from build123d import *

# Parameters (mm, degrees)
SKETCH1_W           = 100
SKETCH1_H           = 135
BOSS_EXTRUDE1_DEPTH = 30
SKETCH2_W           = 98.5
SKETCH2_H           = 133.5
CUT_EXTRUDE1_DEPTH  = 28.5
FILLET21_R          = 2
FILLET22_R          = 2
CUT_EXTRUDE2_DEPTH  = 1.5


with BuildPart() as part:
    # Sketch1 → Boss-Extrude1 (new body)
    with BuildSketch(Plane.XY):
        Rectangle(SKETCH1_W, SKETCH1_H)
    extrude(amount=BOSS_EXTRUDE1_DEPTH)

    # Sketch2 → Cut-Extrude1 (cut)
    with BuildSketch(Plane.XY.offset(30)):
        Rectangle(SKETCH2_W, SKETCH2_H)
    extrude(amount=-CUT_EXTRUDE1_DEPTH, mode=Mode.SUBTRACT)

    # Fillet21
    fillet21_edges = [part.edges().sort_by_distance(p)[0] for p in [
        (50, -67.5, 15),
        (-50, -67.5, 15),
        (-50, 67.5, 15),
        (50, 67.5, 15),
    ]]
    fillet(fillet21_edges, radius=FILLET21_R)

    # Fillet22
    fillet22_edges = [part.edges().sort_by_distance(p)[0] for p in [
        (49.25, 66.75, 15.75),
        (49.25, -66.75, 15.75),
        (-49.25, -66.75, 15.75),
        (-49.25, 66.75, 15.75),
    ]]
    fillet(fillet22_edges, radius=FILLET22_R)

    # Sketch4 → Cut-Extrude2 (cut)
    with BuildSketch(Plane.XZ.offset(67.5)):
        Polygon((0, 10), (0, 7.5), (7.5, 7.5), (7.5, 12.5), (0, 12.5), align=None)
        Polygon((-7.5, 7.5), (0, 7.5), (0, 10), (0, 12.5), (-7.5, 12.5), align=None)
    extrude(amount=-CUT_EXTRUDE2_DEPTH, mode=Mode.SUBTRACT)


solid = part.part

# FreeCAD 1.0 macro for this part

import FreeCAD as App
import Part
import Sketcher


def edges_at(feature, points):
    """Names of the edges that pass closest to the given points."""
    edges = feature.Shape.Edges
    near = lambda p: min(range(len(edges)), key=lambda i: edges[i].distToShape(Part.Vertex(*p))[0])
    return sorted({f"Edge{near(p) + 1}" for p in points})


def add_polygon(sketch, points):
    """Adds a closed chain of lines whose ends are joined by coincident constraints."""
    first, n = sketch.GeometryCount, len(points)
    for a, b in zip(points, points[1:] + points[:1]):
        sketch.addGeometry(Part.LineSegment(App.Vector(*a, 0), App.Vector(*b, 0)), False)
    for i in range(n):
        sketch.addConstraint(Sketcher.Constraint("Coincident", first + i, 2, first + (i + 1) % n, 1))

doc = App.newDocument("Part")
body = doc.addObject("PartDesign::Body", "Body")

sketch1 = body.newObject("Sketcher::SketchObject", "Sketch")
sketch1.AttachmentSupport = (doc.getObject("XY_Plane"), [""])
sketch1.MapMode = "FlatFace"
add_polygon(sketch1, [(-50, 68), (-50, -68), (50, -68), (50, 68)])
sketch1.addConstraint([
    Sketcher.Constraint("Vertical", 0),
    Sketcher.Constraint("Horizontal", 1),
    Sketcher.Constraint("Vertical", 2),
    Sketcher.Constraint("Horizontal", 3),
    Sketcher.Constraint("Symmetric", 0, 2, 2, 2, -1, 1),
    Sketcher.Constraint("DistanceX", 1, 1, 1, 2, 100.0),
    Sketcher.Constraint("DistanceY", 0, 2, 0, 1, 135.0),
])
pad1 = body.newObject("PartDesign::Pad", "Pad")
pad1.Profile = sketch1
pad1.Length = 30

sketch2 = body.newObject("Sketcher::SketchObject", "Sketch001")
sketch2.AttachmentSupport = (doc.getObject("XY_Plane"), [""])
sketch2.MapMode = "FlatFace"
sketch2.AttachmentOffset = App.Placement(App.Vector(0, 0, 30), App.Rotation())
add_polygon(sketch2, [(-49, 67), (-49, -67), (49, -67), (49, 67)])
sketch2.addConstraint([
    Sketcher.Constraint("Vertical", 0),
    Sketcher.Constraint("Horizontal", 1),
    Sketcher.Constraint("Vertical", 2),
    Sketcher.Constraint("Horizontal", 3),
    Sketcher.Constraint("Symmetric", 0, 2, 2, 2, -1, 1),
    Sketcher.Constraint("DistanceX", 1, 1, 1, 2, 98.5),
    Sketcher.Constraint("DistanceY", 0, 2, 0, 1, 133.5),
])
pocket1 = body.newObject("PartDesign::Pocket", "Pocket")
pocket1.Profile = sketch2
pocket1.Length = 28.5
doc.recompute()

fillet = body.newObject("PartDesign::Fillet", "Fillet")
fillet.Base = (pocket1, edges_at(pocket1, [
    (50, -67.5, 15),
    (-50, -67.5, 15),
    (-50, 67.5, 15),
    (50, 67.5, 15),
]))
fillet.Radius = 2
doc.recompute()

fillet2 = body.newObject("PartDesign::Fillet", "Fillet001")
fillet2.Base = (fillet, edges_at(fillet, [
    (49.25, 66.75, 15.75),
    (49.25, -66.75, 15.75),
    (-49.25, -66.75, 15.75),
    (-49.25, 66.75, 15.75),
]))
fillet2.Radius = 2

sketch3 = body.newObject("Sketcher::SketchObject", "Sketch002")
sketch3.AttachmentSupport = (doc.getObject("XZ_Plane"), [""])
sketch3.MapMode = "FlatFace"
sketch3.AttachmentOffset = App.Placement(App.Vector(0, 0, 67.5), App.Rotation())
add_polygon(sketch3, [(8, 8), (8, 12), (-8, 12), (-8, 8)])
sketch3.addConstraint([
    Sketcher.Constraint("Vertical", 0),
    Sketcher.Constraint("Horizontal", 1),
    Sketcher.Constraint("Vertical", 2),
    Sketcher.Constraint("Horizontal", 3),
    Sketcher.Constraint("DistanceX", 1, 2, 1, 1, 15.0),
    Sketcher.Constraint("DistanceY", 0, 1, 0, 2, 5.0),
    Sketcher.Constraint("DistanceX", -1, 1, 0, 2, 7.5),
    Sketcher.Constraint("DistanceY", -1, 1, 0, 2, 12.5),
])
pocket2 = body.newObject("PartDesign::Pocket", "Pocket001")
pocket2.Profile = sketch3
pocket2.Length = 1.5

doc.recompute()
